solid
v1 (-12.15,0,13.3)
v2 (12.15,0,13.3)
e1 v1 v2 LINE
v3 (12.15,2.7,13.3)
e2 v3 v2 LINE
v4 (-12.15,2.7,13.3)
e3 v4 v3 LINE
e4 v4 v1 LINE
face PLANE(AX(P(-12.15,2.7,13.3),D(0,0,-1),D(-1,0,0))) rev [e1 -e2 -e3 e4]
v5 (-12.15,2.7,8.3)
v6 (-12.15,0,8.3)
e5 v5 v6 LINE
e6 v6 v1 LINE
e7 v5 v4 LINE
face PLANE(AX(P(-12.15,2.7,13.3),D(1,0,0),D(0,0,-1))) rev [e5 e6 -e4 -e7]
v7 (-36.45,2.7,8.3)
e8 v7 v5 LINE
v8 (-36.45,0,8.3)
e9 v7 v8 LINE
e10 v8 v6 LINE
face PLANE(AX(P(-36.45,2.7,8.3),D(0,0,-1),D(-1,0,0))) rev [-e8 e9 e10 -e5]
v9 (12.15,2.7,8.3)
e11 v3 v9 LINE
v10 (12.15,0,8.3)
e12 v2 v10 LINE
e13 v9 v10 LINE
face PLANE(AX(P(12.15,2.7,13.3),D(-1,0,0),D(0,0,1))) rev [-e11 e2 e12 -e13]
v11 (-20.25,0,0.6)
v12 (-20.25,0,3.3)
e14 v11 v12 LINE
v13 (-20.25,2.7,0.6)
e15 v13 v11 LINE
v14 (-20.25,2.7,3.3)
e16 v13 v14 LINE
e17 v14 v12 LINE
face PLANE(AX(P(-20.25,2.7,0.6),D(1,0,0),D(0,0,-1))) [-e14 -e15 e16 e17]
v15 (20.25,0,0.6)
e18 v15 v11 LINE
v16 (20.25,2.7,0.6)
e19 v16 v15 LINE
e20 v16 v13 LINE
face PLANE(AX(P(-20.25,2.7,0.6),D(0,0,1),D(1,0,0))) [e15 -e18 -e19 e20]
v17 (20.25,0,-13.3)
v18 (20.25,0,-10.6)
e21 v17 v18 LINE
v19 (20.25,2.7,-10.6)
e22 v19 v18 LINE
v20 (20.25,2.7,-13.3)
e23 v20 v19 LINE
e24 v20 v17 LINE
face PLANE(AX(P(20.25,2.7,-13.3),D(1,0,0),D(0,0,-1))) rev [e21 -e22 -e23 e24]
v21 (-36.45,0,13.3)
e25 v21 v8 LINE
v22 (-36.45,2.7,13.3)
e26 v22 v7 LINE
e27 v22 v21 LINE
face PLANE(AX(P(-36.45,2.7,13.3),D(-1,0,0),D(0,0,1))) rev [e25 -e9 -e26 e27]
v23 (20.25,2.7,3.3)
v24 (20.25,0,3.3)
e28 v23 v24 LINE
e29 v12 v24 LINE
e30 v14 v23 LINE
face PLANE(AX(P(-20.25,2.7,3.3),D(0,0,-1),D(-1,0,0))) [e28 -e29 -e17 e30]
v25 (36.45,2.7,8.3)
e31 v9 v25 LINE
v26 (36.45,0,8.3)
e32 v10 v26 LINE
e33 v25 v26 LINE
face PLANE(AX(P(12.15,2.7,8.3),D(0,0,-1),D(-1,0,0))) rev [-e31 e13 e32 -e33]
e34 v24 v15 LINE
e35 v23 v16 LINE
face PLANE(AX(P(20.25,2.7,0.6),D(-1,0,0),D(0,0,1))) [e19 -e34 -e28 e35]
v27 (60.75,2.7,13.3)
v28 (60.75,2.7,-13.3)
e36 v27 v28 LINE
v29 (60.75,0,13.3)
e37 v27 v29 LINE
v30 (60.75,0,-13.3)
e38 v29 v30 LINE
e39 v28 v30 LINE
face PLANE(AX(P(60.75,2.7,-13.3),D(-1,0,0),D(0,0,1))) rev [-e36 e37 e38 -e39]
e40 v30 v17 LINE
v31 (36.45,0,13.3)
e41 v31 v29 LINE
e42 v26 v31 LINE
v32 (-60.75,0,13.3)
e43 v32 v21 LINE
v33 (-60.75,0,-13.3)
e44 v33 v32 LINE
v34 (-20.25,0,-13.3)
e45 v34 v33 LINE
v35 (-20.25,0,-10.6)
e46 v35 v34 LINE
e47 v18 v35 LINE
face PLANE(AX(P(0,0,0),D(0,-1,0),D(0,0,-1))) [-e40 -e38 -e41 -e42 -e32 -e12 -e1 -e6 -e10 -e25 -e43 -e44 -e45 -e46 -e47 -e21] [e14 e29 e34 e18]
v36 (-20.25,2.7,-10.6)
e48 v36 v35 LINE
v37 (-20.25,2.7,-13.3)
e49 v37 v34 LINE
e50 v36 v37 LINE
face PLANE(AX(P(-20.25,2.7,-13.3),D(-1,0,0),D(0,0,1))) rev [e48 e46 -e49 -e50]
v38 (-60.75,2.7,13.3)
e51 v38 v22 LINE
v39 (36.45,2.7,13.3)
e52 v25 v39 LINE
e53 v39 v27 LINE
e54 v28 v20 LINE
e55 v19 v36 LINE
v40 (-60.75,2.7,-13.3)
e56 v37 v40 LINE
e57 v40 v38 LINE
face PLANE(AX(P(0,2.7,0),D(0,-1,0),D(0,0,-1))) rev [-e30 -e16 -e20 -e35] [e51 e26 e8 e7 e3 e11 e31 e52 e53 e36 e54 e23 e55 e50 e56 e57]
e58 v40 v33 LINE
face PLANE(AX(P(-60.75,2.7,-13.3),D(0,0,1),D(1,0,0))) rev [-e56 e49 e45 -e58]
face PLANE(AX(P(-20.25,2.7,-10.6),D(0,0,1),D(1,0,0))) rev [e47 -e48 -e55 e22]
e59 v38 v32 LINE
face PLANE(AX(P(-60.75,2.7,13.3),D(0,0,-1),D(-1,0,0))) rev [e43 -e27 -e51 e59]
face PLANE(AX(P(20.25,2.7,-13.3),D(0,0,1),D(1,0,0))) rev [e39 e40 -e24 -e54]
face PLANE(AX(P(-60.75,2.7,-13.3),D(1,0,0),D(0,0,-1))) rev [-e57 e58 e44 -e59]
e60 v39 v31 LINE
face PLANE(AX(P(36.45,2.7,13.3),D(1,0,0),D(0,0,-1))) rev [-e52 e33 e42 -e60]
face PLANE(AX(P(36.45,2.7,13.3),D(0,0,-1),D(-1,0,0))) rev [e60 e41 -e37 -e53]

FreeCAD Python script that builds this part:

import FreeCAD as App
import Part
import Sketcher
Q = App.Units.Quantity

doc = App.newDocument("Part")
params = doc.addObject("Spreadsheet::Sheet", "Params")
for row, (alias, value) in enumerate([
    ("sketch1_height", "5 mm"),
    ("sketch1_width", "40.5 mm"),
    ("sketch1_height2", "26.6 mm"),
    ("sketch1_height3", "2.7 mm"),
    ("pad1_length", "2.7 mm"),
], start=1):
    params.set(f"A{row}", alias)
    params.set(f"B{row}", "=" + value)
    params.setAlias(f"B{row}", alias)

body = doc.addObject("PartDesign::Body", "Body")

sketch1 = body.newObject("Sketcher::SketchObject", "Sketch")
sketch1.AttachmentSupport = (doc.getObject("XZ_Plane"), [""])
sketch1.MapMode = "FlatFace"
sketch1.addGeometry(Part.LineSegment(App.Vector(-20.25, -13.3, 0), App.Vector(-60.75, -13.3, 0)), False)
sketch1.addGeometry(Part.LineSegment(App.Vector(-60.75, -13.3, 0), App.Vector(-60.75, 13.3, 0)), False)
sketch1.addGeometry(Part.LineSegment(App.Vector(-60.75, 13.3, 0), App.Vector(-36.45, 13.3, 0)), False)
sketch1.addGeometry(Part.LineSegment(App.Vector(-36.45, 13.3, 0), App.Vector(-36.45, 8.3, 0)), False)
sketch1.addGeometry(Part.LineSegment(App.Vector(-36.45, 8.3, 0), App.Vector(-12.15, 8.3, 0)), False)
sketch1.addGeometry(Part.LineSegment(App.Vector(-12.15, 8.3, 0), App.Vector(-12.15, 13.3, 0)), False)
sketch1.addGeometry(Part.LineSegment(App.Vector(-12.15, 13.3, 0), App.Vector(12.15, 13.3, 0)), False)
sketch1.addGeometry(Part.LineSegment(App.Vector(12.15, 13.3, 0), App.Vector(12.15, 8.3, 0)), False)
sketch1.addGeometry(Part.LineSegment(App.Vector(12.15, 8.3, 0), App.Vector(36.45, 8.3, 0)), False)
sketch1.addGeometry(Part.LineSegment(App.Vector(36.45, 8.3, 0), App.Vector(36.45, 13.3, 0)), False)
sketch1.addGeometry(Part.LineSegment(App.Vector(36.45, 13.3, 0), App.Vector(60.75, 13.3, 0)), False)
sketch1.addGeometry(Part.LineSegment(App.Vector(60.75, 13.3, 0), App.Vector(60.75, -13.3, 0)), False)
sketch1.addGeometry(Part.LineSegment(App.Vector(60.75, -13.3, 0), App.Vector(20.25, -13.3, 0)), False)
sketch1.addGeometry(Part.LineSegment(App.Vector(20.25, -13.3, 0), App.Vector(20.25, -10.6, 0)), False)
sketch1.addGeometry(Part.LineSegment(App.Vector(20.25, -10.6, 0), App.Vector(-20.25, -10.6, 0)), False)
sketch1.addGeometry(Part.LineSegment(App.Vector(-20.25, -10.6, 0), App.Vector(-20.25, -13.3, 0)), False)
sketch1.addGeometry(Part.LineSegment(App.Vector(-20.25, 3.3, 0), App.Vector(-20.25, 0.6, 0)), False)
sketch1.addGeometry(Part.LineSegment(App.Vector(-20.25, 0.6, 0), App.Vector(20.25, 0.6, 0)), False)
sketch1.addGeometry(Part.LineSegment(App.Vector(20.25, 0.6, 0), App.Vector(20.25, 3.3, 0)), False)
sketch1.addGeometry(Part.LineSegment(App.Vector(20.25, 3.3, 0), App.Vector(-20.25, 3.3, 0)), False)
sketch1.addConstraint(Sketcher.Constraint("Coincident", 0, 2, 1, 1))
sketch1.addConstraint(Sketcher.Constraint("Coincident", 1, 2, 2, 1))
sketch1.addConstraint(Sketcher.Constraint("Coincident", 2, 2, 3, 1))
sketch1.addConstraint(Sketcher.Constraint("Coincident", 3, 2, 4, 1))
sketch1.addConstraint(Sketcher.Constraint("Coincident", 4, 2, 5, 1))
sketch1.addConstraint(Sketcher.Constraint("Coincident", 5, 2, 6, 1))
sketch1.addConstraint(Sketcher.Constraint("Coincident", 6, 2, 7, 1))
sketch1.addConstraint(Sketcher.Constraint("Coincident", 7, 2, 8, 1))
sketch1.addConstraint(Sketcher.Constraint("Coincident", 8, 2, 9, 1))
sketch1.addConstraint(Sketcher.Constraint("Coincident", 9, 2, 10, 1))
sketch1.addConstraint(Sketcher.Constraint("Coincident", 10, 2, 11, 1))
sketch1.addConstraint(Sketcher.Constraint("Coincident", 11, 2, 12, 1))
sketch1.addConstraint(Sketcher.Constraint("Coincident", 12, 2, 13, 1))
sketch1.addConstraint(Sketcher.Constraint("Coincident", 13, 2, 14, 1))
sketch1.addConstraint(Sketcher.Constraint("Coincident", 14, 2, 15, 1))
sketch1.addConstraint(Sketcher.Constraint("Coincident", 15, 2, 0, 1))
sketch1.addConstraint(Sketcher.Constraint("Coincident", 16, 2, 17, 1))
sketch1.addConstraint(Sketcher.Constraint("Coincident", 17, 2, 18, 1))
sketch1.addConstraint(Sketcher.Constraint("Coincident", 18, 2, 19, 1))
sketch1.addConstraint(Sketcher.Constraint("Coincident", 19, 2, 16, 1))
sketch1.addConstraint(Sketcher.Constraint("Horizontal", 0))
sketch1.addConstraint(Sketcher.Constraint("Vertical", 1))
sketch1.addConstraint(Sketcher.Constraint("Horizontal", 2))
sketch1.addConstraint(Sketcher.Constraint("Vertical", 3))
sketch1.addConstraint(Sketcher.Constraint("Horizontal", 4))
sketch1.addConstraint(Sketcher.Constraint("Vertical", 5))
sketch1.addConstraint(Sketcher.Constraint("Horizontal", 6))
sketch1.addConstraint(Sketcher.Constraint("Vertical", 7))
sketch1.addConstraint(Sketcher.Constraint("Horizontal", 8))
sketch1.addConstraint(Sketcher.Constraint("Vertical", 9))
sketch1.addConstraint(Sketcher.Constraint("Horizontal", 10))
sketch1.addConstraint(Sketcher.Constraint("Vertical", 11))
sketch1.addConstraint(Sketcher.Constraint("Horizontal", 12))
sketch1.addConstraint(Sketcher.Constraint("Vertical", 13))
sketch1.addConstraint(Sketcher.Constraint("Horizontal", 14))
sketch1.addConstraint(Sketcher.Constraint("Vertical", 15))
sketch1.addConstraint(Sketcher.Constraint("Vertical", 16))
sketch1.addConstraint(Sketcher.Constraint("Horizontal", 17))
sketch1.addConstraint(Sketcher.Constraint("Vertical", 18))
sketch1.addConstraint(Sketcher.Constraint("Horizontal", 19))
sketch1.addConstraint(Sketcher.Constraint("Symmetric", 0, 2, 10, 2, -1, 1))
sketch1.addConstraint(Sketcher.Constraint("Symmetric", 4, 2, 7, 2, -2))
sketch1.addConstraint(Sketcher.Constraint("Symmetric", 2, 2, 9, 2, -2))
sketch1.addConstraint(Sketcher.Constraint("Symmetric", 12, 2, 15, 2, -2))
sketch1.addConstraint(Sketcher.Constraint("Horizontal", 2, 2, 5, 2))
sketch1.addConstraint(Sketcher.Constraint("Vertical", 15, 2, 16, 2))
sketch1.addConstraint(Sketcher.Constraint("Vertical", 13, 2, 17, 2))
sketch1.addConstraint(Sketcher.Constraint("Equal", 2, 4))
sketch1.addConstraint(Sketcher.Constraint("Equal", 4, 6))
sketch1.addConstraint(Sketcher.Constraint("Equal", 12, 14))
sketch1.addConstraint(Sketcher.Constraint("Equal", 15, 16))
sketch1.addConstraint(Sketcher.Constraint("DistanceY", 3, 2, 3, 1, Q("5 mm")))
sketch1.addConstraint(Sketcher.Constraint("DistanceX", 0, 2, 0, 1, Q("40.5 mm")))
sketch1.addConstraint(Sketcher.Constraint("DistanceY", 1, 1, 1, 2, Q("26.6 mm")))
sketch1.addConstraint(Sketcher.Constraint("DistanceY", 13, 1, 13, 2, Q("2.7 mm")))
sketch1.addConstraint(Sketcher.Constraint("DistanceY", 18, 2, 7, 2, Q("5 mm")))
sketch1.setExpression("Constraints[51]", "Params.sketch1_height")
sketch1.setExpression("Constraints[52]", "Params.sketch1_width")
sketch1.setExpression("Constraints[53]", "Params.sketch1_height2")
sketch1.setExpression("Constraints[54]", "Params.sketch1_height3")
pad1 = body.newObject("PartDesign::Pad", "Pad")
pad1.Profile = sketch1
pad1.setExpression("Length", "Params.pad1_length")
pad1.Reversed = True

doc.recompute()
